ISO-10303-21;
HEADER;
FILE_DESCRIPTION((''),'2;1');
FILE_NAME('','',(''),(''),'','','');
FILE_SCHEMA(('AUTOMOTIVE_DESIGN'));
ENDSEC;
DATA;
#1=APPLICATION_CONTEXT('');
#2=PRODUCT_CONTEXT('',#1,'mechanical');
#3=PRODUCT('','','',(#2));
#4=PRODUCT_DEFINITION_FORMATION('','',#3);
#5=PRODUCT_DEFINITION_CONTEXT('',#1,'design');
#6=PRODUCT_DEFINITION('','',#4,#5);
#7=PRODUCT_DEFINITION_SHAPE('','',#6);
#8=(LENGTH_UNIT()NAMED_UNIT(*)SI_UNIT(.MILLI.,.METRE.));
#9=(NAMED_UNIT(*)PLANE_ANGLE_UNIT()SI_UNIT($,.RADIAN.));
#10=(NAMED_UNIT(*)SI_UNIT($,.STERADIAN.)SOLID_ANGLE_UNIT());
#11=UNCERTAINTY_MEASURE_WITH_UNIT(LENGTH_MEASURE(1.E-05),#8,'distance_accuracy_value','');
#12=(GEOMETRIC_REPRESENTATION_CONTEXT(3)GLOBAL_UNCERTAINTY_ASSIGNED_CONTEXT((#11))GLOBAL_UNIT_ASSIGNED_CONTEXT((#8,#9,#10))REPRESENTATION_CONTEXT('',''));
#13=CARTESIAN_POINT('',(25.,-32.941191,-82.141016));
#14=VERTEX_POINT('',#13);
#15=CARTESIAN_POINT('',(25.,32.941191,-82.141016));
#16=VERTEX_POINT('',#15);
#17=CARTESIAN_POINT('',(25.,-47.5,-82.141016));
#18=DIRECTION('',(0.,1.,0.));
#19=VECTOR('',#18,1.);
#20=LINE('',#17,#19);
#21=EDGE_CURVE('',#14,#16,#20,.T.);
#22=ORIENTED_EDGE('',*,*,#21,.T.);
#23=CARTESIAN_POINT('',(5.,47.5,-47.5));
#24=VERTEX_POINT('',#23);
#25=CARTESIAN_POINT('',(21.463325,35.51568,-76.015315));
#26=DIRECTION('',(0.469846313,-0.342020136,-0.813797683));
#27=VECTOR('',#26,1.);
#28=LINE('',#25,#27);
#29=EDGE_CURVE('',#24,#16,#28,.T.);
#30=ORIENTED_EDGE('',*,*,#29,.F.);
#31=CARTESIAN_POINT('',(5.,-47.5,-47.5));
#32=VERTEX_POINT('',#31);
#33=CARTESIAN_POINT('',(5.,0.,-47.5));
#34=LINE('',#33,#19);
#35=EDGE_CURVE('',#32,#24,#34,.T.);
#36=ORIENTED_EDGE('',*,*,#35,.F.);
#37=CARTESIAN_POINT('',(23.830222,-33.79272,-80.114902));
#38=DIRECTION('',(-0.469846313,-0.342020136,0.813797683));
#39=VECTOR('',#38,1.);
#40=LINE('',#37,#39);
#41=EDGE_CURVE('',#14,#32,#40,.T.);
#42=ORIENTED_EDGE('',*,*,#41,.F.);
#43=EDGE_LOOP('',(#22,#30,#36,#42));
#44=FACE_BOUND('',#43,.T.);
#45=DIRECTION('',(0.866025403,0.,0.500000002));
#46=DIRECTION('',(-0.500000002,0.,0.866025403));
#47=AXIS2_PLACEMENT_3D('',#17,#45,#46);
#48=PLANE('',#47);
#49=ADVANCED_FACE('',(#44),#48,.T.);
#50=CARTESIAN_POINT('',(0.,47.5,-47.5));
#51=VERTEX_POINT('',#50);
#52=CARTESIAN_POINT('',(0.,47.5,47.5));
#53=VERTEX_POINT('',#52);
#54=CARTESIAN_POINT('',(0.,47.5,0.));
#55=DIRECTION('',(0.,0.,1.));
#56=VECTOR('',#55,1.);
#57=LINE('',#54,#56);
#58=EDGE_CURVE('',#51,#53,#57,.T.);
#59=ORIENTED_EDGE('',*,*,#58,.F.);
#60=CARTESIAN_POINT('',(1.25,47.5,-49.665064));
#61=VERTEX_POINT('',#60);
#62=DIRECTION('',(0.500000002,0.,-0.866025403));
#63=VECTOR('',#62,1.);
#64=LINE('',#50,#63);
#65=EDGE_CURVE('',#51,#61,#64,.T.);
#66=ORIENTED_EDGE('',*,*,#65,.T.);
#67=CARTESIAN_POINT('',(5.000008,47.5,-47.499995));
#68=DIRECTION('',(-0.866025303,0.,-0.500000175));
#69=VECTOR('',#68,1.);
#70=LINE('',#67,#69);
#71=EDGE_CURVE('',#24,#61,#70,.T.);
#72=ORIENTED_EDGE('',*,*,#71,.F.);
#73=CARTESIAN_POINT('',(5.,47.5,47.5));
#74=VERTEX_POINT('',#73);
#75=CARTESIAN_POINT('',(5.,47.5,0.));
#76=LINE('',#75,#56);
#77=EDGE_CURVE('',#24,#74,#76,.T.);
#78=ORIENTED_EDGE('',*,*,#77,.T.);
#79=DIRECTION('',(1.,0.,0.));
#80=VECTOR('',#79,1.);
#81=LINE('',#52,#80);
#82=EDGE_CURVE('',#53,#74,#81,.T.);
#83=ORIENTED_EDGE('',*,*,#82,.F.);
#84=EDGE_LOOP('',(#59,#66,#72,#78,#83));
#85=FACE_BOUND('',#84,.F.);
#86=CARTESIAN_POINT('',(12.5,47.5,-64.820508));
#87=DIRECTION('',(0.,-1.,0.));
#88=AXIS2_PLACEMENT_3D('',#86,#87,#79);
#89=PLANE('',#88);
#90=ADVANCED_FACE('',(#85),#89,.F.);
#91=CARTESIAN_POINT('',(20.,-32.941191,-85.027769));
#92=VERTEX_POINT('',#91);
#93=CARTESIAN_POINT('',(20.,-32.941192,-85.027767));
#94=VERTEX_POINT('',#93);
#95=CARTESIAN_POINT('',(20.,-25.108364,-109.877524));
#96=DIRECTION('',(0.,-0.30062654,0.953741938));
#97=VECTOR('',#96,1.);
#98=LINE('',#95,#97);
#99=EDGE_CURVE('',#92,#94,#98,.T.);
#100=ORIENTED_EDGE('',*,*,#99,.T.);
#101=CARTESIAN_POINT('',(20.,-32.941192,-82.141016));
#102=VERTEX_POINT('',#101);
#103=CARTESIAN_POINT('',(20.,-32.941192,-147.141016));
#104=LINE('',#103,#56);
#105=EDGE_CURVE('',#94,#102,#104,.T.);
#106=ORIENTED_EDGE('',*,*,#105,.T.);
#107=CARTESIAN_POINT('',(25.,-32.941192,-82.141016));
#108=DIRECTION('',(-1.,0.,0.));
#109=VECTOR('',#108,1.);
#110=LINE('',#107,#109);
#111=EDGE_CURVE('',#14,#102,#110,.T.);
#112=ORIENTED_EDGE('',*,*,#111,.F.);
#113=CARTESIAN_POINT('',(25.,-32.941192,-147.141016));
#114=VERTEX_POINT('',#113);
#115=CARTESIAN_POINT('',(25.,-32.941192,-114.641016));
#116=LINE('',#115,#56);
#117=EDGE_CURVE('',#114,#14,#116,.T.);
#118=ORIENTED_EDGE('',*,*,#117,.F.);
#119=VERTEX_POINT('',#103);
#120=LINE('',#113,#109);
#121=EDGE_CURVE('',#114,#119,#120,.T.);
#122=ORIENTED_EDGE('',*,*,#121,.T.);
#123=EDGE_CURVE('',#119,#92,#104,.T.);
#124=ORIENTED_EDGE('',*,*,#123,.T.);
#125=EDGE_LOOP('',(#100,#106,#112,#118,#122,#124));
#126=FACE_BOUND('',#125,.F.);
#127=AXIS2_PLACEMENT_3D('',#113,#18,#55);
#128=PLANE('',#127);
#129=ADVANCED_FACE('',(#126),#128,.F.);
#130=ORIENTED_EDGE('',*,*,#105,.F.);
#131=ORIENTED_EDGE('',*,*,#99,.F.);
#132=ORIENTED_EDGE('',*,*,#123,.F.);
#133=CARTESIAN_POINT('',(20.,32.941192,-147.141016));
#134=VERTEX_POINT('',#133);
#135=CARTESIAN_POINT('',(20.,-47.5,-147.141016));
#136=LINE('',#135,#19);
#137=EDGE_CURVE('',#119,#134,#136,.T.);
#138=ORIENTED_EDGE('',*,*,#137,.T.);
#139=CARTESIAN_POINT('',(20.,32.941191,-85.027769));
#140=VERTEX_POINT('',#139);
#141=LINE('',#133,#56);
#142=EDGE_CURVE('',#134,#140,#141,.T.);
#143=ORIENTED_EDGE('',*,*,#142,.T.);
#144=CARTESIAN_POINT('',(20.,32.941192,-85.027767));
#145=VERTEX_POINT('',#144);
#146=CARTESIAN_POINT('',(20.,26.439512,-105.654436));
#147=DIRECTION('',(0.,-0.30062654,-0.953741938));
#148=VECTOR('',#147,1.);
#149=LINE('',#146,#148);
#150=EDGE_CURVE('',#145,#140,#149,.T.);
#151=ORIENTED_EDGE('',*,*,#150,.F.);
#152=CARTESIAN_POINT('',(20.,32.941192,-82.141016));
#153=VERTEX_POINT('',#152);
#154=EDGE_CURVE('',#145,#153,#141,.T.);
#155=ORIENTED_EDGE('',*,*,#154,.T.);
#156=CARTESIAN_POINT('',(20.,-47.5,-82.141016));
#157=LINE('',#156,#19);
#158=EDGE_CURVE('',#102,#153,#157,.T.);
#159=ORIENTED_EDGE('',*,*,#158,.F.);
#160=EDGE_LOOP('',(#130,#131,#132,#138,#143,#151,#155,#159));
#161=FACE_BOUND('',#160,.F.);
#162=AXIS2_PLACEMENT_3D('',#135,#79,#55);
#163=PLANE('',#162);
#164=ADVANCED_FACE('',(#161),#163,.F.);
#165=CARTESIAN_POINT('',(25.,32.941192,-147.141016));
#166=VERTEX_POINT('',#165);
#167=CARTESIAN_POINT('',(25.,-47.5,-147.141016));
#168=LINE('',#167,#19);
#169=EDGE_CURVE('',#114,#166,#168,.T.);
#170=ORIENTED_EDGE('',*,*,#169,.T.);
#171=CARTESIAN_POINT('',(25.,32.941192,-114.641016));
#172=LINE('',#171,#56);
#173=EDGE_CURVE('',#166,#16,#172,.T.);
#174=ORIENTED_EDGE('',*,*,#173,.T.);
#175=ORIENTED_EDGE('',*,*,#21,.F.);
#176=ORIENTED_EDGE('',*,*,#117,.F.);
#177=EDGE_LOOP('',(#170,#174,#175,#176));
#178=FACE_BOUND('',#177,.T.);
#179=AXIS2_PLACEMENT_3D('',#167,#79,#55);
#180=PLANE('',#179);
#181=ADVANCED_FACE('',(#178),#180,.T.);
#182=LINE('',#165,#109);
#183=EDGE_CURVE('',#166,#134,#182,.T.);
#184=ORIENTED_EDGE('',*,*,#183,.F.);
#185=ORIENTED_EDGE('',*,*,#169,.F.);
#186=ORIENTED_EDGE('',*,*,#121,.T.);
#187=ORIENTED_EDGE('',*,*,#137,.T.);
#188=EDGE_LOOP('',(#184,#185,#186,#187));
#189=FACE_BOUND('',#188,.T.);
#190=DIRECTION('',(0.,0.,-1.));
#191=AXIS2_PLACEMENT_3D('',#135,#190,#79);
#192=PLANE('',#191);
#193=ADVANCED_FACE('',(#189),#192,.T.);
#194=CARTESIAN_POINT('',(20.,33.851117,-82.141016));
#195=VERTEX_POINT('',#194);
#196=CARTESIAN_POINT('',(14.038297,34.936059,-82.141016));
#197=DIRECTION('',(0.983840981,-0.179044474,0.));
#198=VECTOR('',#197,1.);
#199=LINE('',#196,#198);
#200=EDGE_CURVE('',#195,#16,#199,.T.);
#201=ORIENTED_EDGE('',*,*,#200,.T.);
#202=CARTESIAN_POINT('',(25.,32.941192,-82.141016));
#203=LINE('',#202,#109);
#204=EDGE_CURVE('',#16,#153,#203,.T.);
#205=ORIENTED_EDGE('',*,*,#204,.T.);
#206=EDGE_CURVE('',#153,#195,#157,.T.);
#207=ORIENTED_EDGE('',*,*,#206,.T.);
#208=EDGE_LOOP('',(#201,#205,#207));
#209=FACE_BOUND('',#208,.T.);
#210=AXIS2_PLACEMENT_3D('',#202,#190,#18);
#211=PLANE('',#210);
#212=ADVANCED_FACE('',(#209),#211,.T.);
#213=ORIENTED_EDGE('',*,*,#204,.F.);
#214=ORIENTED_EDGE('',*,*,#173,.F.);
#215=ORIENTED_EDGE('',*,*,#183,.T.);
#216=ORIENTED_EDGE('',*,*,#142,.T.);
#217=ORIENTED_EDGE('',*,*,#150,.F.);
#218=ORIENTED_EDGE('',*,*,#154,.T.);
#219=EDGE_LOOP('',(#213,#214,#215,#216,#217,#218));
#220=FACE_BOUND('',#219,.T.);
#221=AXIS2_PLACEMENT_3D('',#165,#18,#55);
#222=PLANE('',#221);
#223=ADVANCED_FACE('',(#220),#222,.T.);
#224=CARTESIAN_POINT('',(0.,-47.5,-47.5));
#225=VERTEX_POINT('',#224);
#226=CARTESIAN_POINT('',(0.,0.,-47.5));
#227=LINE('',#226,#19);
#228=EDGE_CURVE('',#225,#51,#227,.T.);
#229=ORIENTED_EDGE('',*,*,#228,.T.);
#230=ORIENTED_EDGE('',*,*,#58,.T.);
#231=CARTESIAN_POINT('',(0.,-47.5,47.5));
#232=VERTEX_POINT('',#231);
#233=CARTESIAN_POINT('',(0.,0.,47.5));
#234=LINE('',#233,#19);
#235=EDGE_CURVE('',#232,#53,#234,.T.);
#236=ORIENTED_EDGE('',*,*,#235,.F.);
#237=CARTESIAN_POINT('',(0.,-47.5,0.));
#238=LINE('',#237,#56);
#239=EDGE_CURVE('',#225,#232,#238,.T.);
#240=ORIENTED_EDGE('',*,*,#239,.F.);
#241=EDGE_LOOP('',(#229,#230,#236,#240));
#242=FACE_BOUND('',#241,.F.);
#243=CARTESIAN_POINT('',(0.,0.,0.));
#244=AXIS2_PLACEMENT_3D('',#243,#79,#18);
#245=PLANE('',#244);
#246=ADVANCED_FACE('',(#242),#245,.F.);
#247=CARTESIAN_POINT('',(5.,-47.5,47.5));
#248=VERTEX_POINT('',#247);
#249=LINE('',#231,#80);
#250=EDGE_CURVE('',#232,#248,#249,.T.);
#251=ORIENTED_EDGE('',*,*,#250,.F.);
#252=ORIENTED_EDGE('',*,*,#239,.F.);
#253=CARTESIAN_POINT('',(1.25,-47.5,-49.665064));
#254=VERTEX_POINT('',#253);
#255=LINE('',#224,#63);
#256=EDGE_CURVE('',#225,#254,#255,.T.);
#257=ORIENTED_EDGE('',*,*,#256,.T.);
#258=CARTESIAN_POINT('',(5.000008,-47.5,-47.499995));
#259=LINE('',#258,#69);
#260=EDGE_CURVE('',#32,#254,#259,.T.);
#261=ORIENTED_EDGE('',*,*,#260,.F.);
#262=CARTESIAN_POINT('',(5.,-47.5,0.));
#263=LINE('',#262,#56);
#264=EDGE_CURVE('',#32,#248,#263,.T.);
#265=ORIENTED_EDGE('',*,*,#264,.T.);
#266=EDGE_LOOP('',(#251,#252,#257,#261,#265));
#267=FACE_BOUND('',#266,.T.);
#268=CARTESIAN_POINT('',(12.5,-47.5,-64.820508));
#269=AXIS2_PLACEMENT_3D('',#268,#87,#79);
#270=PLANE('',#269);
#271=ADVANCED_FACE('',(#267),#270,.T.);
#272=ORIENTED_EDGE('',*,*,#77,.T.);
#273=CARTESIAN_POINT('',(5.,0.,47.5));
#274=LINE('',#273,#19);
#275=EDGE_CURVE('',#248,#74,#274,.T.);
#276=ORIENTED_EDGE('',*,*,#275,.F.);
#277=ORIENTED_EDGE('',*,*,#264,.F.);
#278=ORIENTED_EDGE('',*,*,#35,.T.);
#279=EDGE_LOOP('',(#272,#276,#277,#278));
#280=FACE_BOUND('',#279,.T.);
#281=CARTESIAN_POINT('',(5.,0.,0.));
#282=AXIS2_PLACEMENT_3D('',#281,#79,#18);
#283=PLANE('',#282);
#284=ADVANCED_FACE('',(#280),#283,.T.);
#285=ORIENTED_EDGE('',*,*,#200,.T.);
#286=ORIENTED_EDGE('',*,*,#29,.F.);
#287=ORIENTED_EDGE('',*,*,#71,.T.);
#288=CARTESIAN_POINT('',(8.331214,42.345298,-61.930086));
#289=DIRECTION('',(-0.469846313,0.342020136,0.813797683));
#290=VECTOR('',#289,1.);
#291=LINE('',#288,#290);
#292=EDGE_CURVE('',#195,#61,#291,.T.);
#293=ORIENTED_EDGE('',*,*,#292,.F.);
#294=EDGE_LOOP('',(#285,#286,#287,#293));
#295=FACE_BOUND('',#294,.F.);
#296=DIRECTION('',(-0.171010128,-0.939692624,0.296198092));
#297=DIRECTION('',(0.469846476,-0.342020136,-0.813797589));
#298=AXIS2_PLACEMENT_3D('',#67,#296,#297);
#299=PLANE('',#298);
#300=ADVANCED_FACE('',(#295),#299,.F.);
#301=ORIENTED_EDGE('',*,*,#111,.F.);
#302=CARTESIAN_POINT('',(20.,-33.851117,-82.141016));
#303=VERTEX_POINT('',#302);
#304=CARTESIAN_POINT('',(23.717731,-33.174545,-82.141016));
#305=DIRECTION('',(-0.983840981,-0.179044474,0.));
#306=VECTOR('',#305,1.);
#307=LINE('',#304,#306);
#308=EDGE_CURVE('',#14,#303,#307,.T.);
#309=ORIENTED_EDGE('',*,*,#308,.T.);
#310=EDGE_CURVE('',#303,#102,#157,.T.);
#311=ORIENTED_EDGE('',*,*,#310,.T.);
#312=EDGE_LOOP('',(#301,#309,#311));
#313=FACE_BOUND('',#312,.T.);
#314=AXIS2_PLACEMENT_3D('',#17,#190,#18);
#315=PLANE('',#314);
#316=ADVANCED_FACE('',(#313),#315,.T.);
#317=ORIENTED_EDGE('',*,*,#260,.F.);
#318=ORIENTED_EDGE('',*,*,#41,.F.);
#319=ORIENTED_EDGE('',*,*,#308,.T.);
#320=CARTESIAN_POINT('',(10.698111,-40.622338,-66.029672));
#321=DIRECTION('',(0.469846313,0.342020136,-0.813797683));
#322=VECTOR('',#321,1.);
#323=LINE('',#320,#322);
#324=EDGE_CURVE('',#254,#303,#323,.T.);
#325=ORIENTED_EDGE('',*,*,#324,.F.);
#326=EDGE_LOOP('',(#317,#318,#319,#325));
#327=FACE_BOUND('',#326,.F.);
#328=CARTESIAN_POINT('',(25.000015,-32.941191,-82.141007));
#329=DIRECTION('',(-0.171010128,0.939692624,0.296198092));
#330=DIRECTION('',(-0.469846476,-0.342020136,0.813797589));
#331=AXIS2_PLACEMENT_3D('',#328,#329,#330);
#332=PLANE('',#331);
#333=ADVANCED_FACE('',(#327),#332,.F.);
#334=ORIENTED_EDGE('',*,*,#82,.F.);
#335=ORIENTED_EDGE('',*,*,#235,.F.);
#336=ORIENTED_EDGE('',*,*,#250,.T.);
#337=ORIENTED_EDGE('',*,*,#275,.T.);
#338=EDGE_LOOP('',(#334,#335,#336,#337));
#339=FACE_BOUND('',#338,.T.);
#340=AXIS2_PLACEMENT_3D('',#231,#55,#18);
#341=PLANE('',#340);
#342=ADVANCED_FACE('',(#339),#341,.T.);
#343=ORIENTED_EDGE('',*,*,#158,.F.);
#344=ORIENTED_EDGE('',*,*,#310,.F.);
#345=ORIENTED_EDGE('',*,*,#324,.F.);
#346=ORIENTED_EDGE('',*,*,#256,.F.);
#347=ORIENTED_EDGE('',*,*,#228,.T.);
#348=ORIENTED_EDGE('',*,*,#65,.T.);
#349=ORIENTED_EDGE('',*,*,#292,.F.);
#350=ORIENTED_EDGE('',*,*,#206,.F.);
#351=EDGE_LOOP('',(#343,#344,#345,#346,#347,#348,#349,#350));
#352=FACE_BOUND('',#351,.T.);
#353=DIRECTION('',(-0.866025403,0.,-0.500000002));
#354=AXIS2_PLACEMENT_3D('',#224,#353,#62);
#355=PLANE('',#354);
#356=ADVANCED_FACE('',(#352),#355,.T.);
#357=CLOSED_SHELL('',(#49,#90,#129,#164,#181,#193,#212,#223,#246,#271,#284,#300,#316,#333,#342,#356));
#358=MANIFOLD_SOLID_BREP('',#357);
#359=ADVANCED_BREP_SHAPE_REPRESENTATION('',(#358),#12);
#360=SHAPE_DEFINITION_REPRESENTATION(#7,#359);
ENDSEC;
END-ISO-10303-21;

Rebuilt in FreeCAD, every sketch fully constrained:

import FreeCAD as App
import Part
import Sketcher
from FreeCAD import Vector
Q = App.Units.Quantity


def add_polygon(sketch, points):
    """Adds a closed chain of lines whose ends are joined by coincident constraints."""
    first, n = sketch.GeometryCount, len(points)
    for a, b in zip(points, points[1:] + points[:1]):
        sketch.addGeometry(Part.LineSegment(App.Vector(*a, 0), App.Vector(*b, 0)), False)
    for i in range(n):
        sketch.addConstraint(Sketcher.Constraint("Coincident", first + i, 2, first + (i + 1) % n, 1))

doc = App.newDocument("Part")
body = doc.addObject("PartDesign::Body", "Body")

sketch1 = doc.addObject("Sketcher::SketchObject", "Sketch")
body.addObject(sketch1)
sketch1.AttachmentSupport = (doc.YZ_Plane, [""])
sketch1.MapMode = "FlatFace"
add_polygon(sketch1, [(-48, 48), (-48, -48), (48, -48), (48, 48)])
sketch1.addConstraint([
    Sketcher.Constraint("Vertical", 0),
    Sketcher.Constraint("Horizontal", 1),
    Sketcher.Constraint("Vertical", 2),
    Sketcher.Constraint("Horizontal", 3),
    Sketcher.Constraint("Symmetric", 0, 2, 2, 2, -1, 1),
    Sketcher.Constraint("Equal", 3, 0),
    Sketcher.Constraint("DistanceX", 1, 1, 1, 2, Q("95 mm")),
])
pad1 = doc.addObject("PartDesign::Pad", "Pad")
body.addObject(pad1)
pad1.Profile = sketch1
pad1.Length = 5

sketch2 = doc.addObject("Sketcher::SketchObject", "Sketch001")
body.addObject(sketch2)
sketch2.AttachmentSupport = (doc.XZ_Plane, [""])
sketch2.MapMode = "FlatFace"
sketch2.AttachmentOffset = App.Placement(Vector(0, 0, 47.5), App.Rotation())
add_polygon(sketch2, [(25, -82), (5, -48), (0, -48), (20, -82), (20, -147), (25, -147)])
sketch2.addConstraint([
    Sketcher.Constraint("Horizontal", 1),
    Sketcher.Constraint("Vertical", 3),
    Sketcher.Constraint("Horizontal", 4),
    Sketcher.Constraint("Vertical", 5),
    Sketcher.Constraint("PointOnObject", 1, 2, -2),
    Sketcher.Constraint("Parallel", 0, 2),
    Sketcher.Constraint("Horizontal", 2, 2, 5, 2),
    Sketcher.Constraint("DistanceX", 1, 2, 1, 1, Q("5 mm")),
    Sketcher.Constraint("DistanceY", 3, 2, 3, 1, Q("65 mm")),
    Sketcher.Constraint("Angle", 0, Q("120 deg")),
    Sketcher.Constraint("Distance", 0, Q("40 mm")),
    Sketcher.Constraint("DistanceY", 0, 2, -1, 1, Q("47.5 mm")),
])
pad2 = doc.addObject("PartDesign::Pad", "Pad001")
body.addObject(pad2)
pad2.Profile = sketch2
pad2.Length = 95
pad2.Reversed = True

sketch3 = doc.addObject("Sketcher::SketchObject", "Sketch002")
body.addObject(sketch3)
sketch3.Placement = App.Placement(Vector(-16.818103, 0, -9.709936), App.Rotation(Vector(0, 1, 0), Vector(-0.500000175, 0, 0.866025303), Vector(0.866025303, 0, 0.500000175), "ZXY"))
add_polygon(sketch3, [(-33, -84), (-48, -44), (-48, -84)])
add_polygon(sketch3, [(48, -84), (48, -44), (33, -84)])
sketch3.addConstraint([
    Sketcher.Constraint("Vertical", 1),
    Sketcher.Constraint("Horizontal", 2),
    Sketcher.Constraint("Vertical", 3),
    Sketcher.Constraint("Horizontal", 5),
    Sketcher.Constraint("Symmetric", 0, 2, 3, 2, -2),
    Sketcher.Constraint("Symmetric", 2, 2, 4, 2, -2),
    Sketcher.Constraint("DistanceY", 1, 2, 1, 1, Q("40 mm")),
    Sketcher.Constraint("Angle", 0, Q("110 deg")),
    Sketcher.Constraint("DistanceX", 0, 2, 3, 2, Q("95 mm")),
    Sketcher.Constraint("DistanceY", 0, 2, -1, 1, Q("43.636207 mm")),
])
pocket1 = doc.addObject("PartDesign::Pocket", "Pocket")
body.addObject(pocket1)
pocket1.Profile = sketch3
pocket1.Length = 25.4

sketch4 = doc.addObject("Sketcher::SketchObject", "Sketch003")
body.addObject(sketch4)
sketch4.AttachmentSupport = (doc.YZ_Plane, [""])
sketch4.MapMode = "FlatFace"
sketch4.AttachmentOffset = App.Placement(Vector(0, 0, 25), App.Rotation())
add_polygon(sketch4, [(-48, -82), (-48, -147), (-33, -147), (-33, -82)])
add_polygon(sketch4, [(33, -82), (33, -147), (48, -147), (48, -82)])
sketch4.addConstraint([
    Sketcher.Constraint("Vertical", 0),
    Sketcher.Constraint("Horizontal", 1),
    Sketcher.Constraint("Vertical", 2),
    Sketcher.Constraint("Horizontal", 3),
    Sketcher.Constraint("Vertical", 4),
    Sketcher.Constraint("Horizontal", 5),
    Sketcher.Constraint("Vertical", 6),
    Sketcher.Constraint("Horizontal", 7),
    Sketcher.Constraint("Symmetric", 1, 2, 4, 2, -2),
    Sketcher.Constraint("Symmetric", 3, 2, 6, 2, -2),
    Sketcher.Constraint("DistanceY", 0, 2, 0, 1, Q("65 mm")),
    Sketcher.Constraint("DistanceX", 0, 2, 5, 2, Q("95.000001 mm")),
    Sketcher.Constraint("DistanceX", 1, 1, 1, 2, Q("14.558809 mm")),
    Sketcher.Constraint("DistanceY", 0, 2, -1, 1, Q("147.141016 mm")),
])
pocket2 = doc.addObject("PartDesign::Pocket", "Pocket001")
body.addObject(pocket2)
pocket2.Profile = sketch4
pocket2.Length = 25.4

doc.recompute()
